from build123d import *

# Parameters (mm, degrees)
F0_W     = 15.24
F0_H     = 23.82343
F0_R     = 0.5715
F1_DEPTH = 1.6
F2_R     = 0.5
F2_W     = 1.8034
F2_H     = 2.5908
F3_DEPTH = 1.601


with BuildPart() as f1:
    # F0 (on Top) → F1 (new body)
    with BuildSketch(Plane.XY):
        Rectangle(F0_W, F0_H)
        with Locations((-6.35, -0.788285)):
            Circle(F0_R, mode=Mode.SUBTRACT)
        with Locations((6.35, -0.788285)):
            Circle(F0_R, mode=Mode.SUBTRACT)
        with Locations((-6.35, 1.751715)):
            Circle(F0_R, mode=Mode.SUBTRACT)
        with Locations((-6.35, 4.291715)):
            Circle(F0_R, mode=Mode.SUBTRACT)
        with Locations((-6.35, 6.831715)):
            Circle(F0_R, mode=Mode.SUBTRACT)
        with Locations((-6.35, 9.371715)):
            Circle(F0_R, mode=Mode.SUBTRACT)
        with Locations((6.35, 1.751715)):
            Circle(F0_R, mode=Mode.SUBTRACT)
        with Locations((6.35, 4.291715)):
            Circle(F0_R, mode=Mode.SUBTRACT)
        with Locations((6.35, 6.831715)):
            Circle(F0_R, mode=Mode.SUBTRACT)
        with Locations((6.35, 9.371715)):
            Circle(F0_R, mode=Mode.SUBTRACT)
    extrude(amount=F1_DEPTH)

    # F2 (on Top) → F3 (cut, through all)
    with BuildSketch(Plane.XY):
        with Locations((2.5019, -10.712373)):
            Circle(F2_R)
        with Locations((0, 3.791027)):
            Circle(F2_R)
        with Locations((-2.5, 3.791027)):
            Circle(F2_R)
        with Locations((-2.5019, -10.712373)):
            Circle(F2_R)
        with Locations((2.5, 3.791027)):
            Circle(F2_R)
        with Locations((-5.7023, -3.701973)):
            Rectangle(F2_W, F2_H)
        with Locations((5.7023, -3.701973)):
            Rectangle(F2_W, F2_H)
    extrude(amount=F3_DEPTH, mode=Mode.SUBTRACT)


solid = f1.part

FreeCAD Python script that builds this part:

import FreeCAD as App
import Part
import Sketcher

V = App.Vector
Q = App.Units.Quantity

doc = App.newDocument("Part")
body = doc.addObject("PartDesign::Body", "Body")

sketch1 = doc.addObject("Sketcher::SketchObject", "Sketch")
body.addObject(sketch1)
sketch1.AttachmentSupport = (doc.XY_Plane, [""])
sketch1.MapMode = "FlatFace"
sketch1.addGeometry([
    Part.LineSegment(V(-7.62, 11.911715, 0), V(-7.62, -11.911715, 0)),
    Part.LineSegment(V(-7.62, -11.911715, 0), V(7.62, -11.911715, 0)),
    Part.LineSegment(V(7.62, -11.911715, 0), V(7.62, 11.911715, 0)),
    Part.LineSegment(V(7.62, 11.911715, 0), V(-7.62, 11.911715, 0)),
    Part.Circle(V(-6.35, -0.788285, 0), V(0, 0, 1), 0.5715),
    Part.Circle(V(-6.35, 1.751715, 0), V(0, 0, 1), 0.5715),
    Part.Circle(V(6.35, -0.788285, 0), V(0, 0, 1), 0.5715),
    Part.Circle(V(6.35, 1.751715, 0), V(0, 0, 1), 0.5715),
    Part.Circle(V(-6.35, 4.291715, 0), V(0, 0, 1), 0.5715),
    Part.Circle(V(-6.35, 6.831715, 0), V(0, 0, 1), 0.5715),
    Part.Circle(V(-6.35, 9.371715, 0), V(0, 0, 1), 0.5715),
    Part.Circle(V(6.35, 4.291715, 0), V(0, 0, 1), 0.5715),
    Part.Circle(V(6.35, 6.831715, 0), V(0, 0, 1), 0.5715),
    Part.Circle(V(6.35, 9.371715, 0), V(0, 0, 1), 0.5715),
], False)
sketch1.addConstraint([
    Sketcher.Constraint("Coincident", 0, 2, 1, 1),
    Sketcher.Constraint("Coincident", 1, 2, 2, 1),
    Sketcher.Constraint("Coincident", 2, 2, 3, 1),
    Sketcher.Constraint("Coincident", 3, 2, 0, 1),
    Sketcher.Constraint("Vertical", 0),
    Sketcher.Constraint("Horizontal", 1),
    Sketcher.Constraint("Vertical", 2),
    Sketcher.Constraint("Horizontal", 3),
    Sketcher.Constraint("Equal", 4, 5),
    Sketcher.Constraint("Equal", 5, 6),
    Sketcher.Constraint("Equal", 6, 7),
    Sketcher.Constraint("Equal", 7, 8),
    Sketcher.Constraint("Equal", 8, 9),
    Sketcher.Constraint("Equal", 9, 10),
    Sketcher.Constraint("Equal", 10, 11),
    Sketcher.Constraint("Equal", 11, 12),
    Sketcher.Constraint("Equal", 12, 13),
    Sketcher.Constraint("Symmetric", 0, 2, 2, 2, -1, 1),
    Sketcher.Constraint("Symmetric", 4, 3, 6, 3, -2),
    Sketcher.Constraint("Symmetric", 5, 3, 7, 3, -2),
    Sketcher.Constraint("Symmetric", 8, 3, 11, 3, -2),
    Sketcher.Constraint("Symmetric", 9, 3, 12, 3, -2),
    Sketcher.Constraint("Symmetric", 10, 3, 13, 3, -2),
    Sketcher.Constraint("Vertical", 4, 3, 5, 3),
    Sketcher.Constraint("Vertical", 5, 3, 8, 3),
    Sketcher.Constraint("Vertical", 8, 3, 9, 3),
    Sketcher.Constraint("Vertical", 9, 3, 10, 3),
    Sketcher.Constraint("Diameter", 4, Q("0.045 in")),
    Sketcher.Constraint("DistanceX", 1, 1, 1, 2, Q("0.6 in")),
    Sketcher.Constraint("DistanceY", 4, 3, 5, 3, Q("0.1 in")),
    Sketcher.Constraint("DistanceX", 4, 3, 6, 3, Q("0.5 in")),
    Sketcher.Constraint("DistanceY", 5, 3, 8, 3, Q("0.1 in")),
    Sketcher.Constraint("DistanceY", 8, 3, 9, 3, Q("0.1 in")),
    Sketcher.Constraint("DistanceY", 9, 3, 10, 3, Q("0.1 in")),
    Sketcher.Constraint("DistanceY", 13, 3, 2, 2, Q("0.1 in")),
    Sketcher.Constraint("DistanceY", 0, 2, 0, 1, 23.82343),
])
pad1 = doc.addObject("PartDesign::Pad", "Pad")
body.addObject(pad1)
pad1.Profile = sketch1
pad1.Length = 1.6

sketch2 = doc.addObject("Sketcher::SketchObject", "Sketch001")
body.addObject(sketch2)
sketch2.AttachmentSupport = (doc.XY_Plane, [""])
sketch2.MapMode = "FlatFace"
sketch2.addGeometry([
    Part.Circle(V(2.5019, -10.712373, 0), V(0, 0, 1), 0.5),
    Part.Circle(V(0, 3.791027, 0), V(0, 0, 1), 0.5),
    Part.Circle(V(-2.5, 3.791027, 0), V(0, 0, 1), 0.5),
    Part.Circle(V(-2.5019, -10.712373, 0), V(0, 0, 1), 0.5),
    Part.Circle(V(2.5, 3.791027, 0), V(0, 0, 1), 0.5),
    Part.LineSegment(V(-6.604, -2.406573, 0), V(-6.604, -4.997373, 0)),
    Part.LineSegment(V(-6.604, -4.997373, 0), V(-4.8006, -4.997373, 0)),
    Part.LineSegment(V(-4.8006, -4.997373, 0), V(-4.8006, -2.406573, 0)),
    Part.LineSegment(V(-4.8006, -2.406573, 0), V(-6.604, -2.406573, 0)),
    Part.LineSegment(V(4.8006, -2.406573, 0), V(4.8006, -4.997373, 0)),
    Part.LineSegment(V(4.8006, -4.997373, 0), V(6.604, -4.997373, 0)),
    Part.LineSegment(V(6.604, -4.997373, 0), V(6.604, -2.406573, 0)),
    Part.LineSegment(V(6.604, -2.406573, 0), V(4.8006, -2.406573, 0)),
], False)
sketch2.addConstraint([
    Sketcher.Constraint("Coincident", 5, 2, 6, 1),
    Sketcher.Constraint("Coincident", 6, 2, 7, 1),
    Sketcher.Constraint("Coincident", 7, 2, 8, 1),
    Sketcher.Constraint("Coincident", 8, 2, 5, 1),
    Sketcher.Constraint("Coincident", 9, 2, 10, 1),
    Sketcher.Constraint("Coincident", 10, 2, 11, 1),
    Sketcher.Constraint("Coincident", 11, 2, 12, 1),
    Sketcher.Constraint("Coincident", 12, 2, 9, 1),
    Sketcher.Constraint("Vertical", 5),
    Sketcher.Constraint("Horizontal", 6),
    Sketcher.Constraint("Vertical", 7),
    Sketcher.Constraint("Horizontal", 8),
    Sketcher.Constraint("Vertical", 9),
    Sketcher.Constraint("Horizontal", 10),
    Sketcher.Constraint("Vertical", 11),
    Sketcher.Constraint("Horizontal", 12),
    Sketcher.Constraint("Equal", 0, 1),
    Sketcher.Constraint("Equal", 1, 2),
    Sketcher.Constraint("Equal", 2, 3),
    Sketcher.Constraint("Equal", 3, 4),
    Sketcher.Constraint("Symmetric", 0, 3, 3, 3, -2),
    Sketcher.Constraint("Symmetric", 2, 3, 4, 3, -2),
    Sketcher.Constraint("Symmetric", 6, 2, 9, 2, -2),
    Sketcher.Constraint("Symmetric", 8, 2, 11, 2, -2),
    Sketcher.Constraint("PointOnObject", 1, 3, -2),
    Sketcher.Constraint("Horizontal", 1, 3, 2, 3),
    Sketcher.Constraint("Diameter", 0, 1.0),
    Sketcher.Constraint("DistanceX", 6, 1, 6, 2, Q("0.071 in")),
    Sketcher.Constraint("DistanceY", 5, 2, 5, 1, Q("0.102 in")),
    Sketcher.Constraint("DistanceX", 5, 2, -1, 1, Q("0.26 in")),
    Sketcher.Constraint("DistanceY", 0, 3, 1, 3, Q("0.571 in")),
    Sketcher.Constraint("DistanceX", 3, 3, 0, 3, Q("0.197 in")),
    Sketcher.Constraint("DistanceY", 3, 3, 5, 2, Q("0.225 in")),
    Sketcher.Constraint("DistanceX", 2, 3, -1, 1, 2.5),
    Sketcher.Constraint("DistanceY", 0, 3, -1, 1, 10.712373),
])
pocket1 = doc.addObject("PartDesign::Pocket", "Pocket")
body.addObject(pocket1)
pocket1.Profile = sketch2
pocket1.Type = "ThroughAll"
pocket1.Reversed = True

doc.recompute()
